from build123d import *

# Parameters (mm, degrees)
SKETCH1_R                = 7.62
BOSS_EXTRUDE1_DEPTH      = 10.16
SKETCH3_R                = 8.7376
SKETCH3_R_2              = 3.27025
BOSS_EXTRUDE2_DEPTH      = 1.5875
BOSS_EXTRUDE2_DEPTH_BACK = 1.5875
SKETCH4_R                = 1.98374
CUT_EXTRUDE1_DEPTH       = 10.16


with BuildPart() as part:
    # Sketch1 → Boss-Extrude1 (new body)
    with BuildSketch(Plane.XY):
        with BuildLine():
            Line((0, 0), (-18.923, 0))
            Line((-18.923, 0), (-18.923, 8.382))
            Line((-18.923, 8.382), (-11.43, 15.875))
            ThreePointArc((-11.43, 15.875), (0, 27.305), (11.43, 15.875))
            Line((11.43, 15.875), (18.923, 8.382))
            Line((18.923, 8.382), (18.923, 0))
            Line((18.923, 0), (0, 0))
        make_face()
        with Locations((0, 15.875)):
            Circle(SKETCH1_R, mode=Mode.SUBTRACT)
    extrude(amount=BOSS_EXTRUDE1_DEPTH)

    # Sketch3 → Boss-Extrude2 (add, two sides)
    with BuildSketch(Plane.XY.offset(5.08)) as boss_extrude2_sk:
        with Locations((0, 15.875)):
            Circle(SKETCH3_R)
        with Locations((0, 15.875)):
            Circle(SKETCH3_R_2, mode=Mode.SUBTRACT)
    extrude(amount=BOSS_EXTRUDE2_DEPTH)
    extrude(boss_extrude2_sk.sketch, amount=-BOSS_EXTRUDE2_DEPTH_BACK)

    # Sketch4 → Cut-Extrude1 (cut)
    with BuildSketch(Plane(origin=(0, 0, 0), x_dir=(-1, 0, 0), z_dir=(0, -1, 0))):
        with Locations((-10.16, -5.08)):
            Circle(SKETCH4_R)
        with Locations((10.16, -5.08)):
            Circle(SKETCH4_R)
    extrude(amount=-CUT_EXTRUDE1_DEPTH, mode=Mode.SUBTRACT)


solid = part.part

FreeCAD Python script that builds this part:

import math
import FreeCAD as App
import Part
import Sketcher
from FreeCAD import Vector
Q = App.Units.Quantity

doc = App.newDocument("Part")
params = doc.addObject("Spreadsheet::Sheet", "Params")
for row, (alias, value) in enumerate([
    ("sketch1_diameter", "0.6 in"),
    ("sketch1_radius", "0.45 in"),
    ("sketch1_width", "1.49 in"),
    ("sketch1_height", "0.33 in"),
    ("pad1_length", "0.4 in"),
    ("sketch2_diameter", "0.688 in"),
    ("pad2_length", "0.0625 in"),
    ("pad2_length2", "0.0625 in"),
    ("pocket1_length", "0.4 in"),
], start=1):
    params.set(f"A{row}", alias)
    params.set(f"B{row}", "=" + value)
    params.setAlias(f"B{row}", alias)

body = doc.addObject("PartDesign::Body", "Body")

# Sketch on XY plane
sketch1 = body.newObject("Sketcher::SketchObject", "Sketch")
sketch1.AttachmentSupport = (doc.getObject("XY_Plane"), [""])
sketch1.MapMode = "FlatFace"
sketch1.addGeometry([
    Part.LineSegment(Vector(-19, 8, 0), Vector(-19, 0, 0)),  # 0
    Part.LineSegment(Vector(-19, 0, 0), Vector(19, 0, 0)),  # 1
    Part.LineSegment(Vector(19, 0, 0), Vector(19, 8, 0)),  # 2
    Part.LineSegment(Vector(19, 8, 0), Vector(11, 16, 0)),  # 3
    Part.ArcOfCircle(Part.Circle(Vector(0, 16, 0), Vector(0, 0, 1), 11), math.radians(0), math.radians(180)),  # 4
    Part.LineSegment(Vector(-11, 16, 0), Vector(-19, 8, 0)),  # 5
    Part.Circle(Vector(0, 16, 0), Vector(0, 0, 1), 8),  # 6
], False)
sketch1.addConstraint([
    Sketcher.Constraint("Coincident", 0, 2, 1, 1),
    Sketcher.Constraint("Coincident", 1, 2, 2, 1),
    Sketcher.Constraint("Coincident", 2, 2, 3, 1),
    Sketcher.Constraint("Coincident", 3, 2, 4, 1),
    Sketcher.Constraint("Coincident", 4, 2, 5, 1),
    Sketcher.Constraint("Coincident", 5, 2, 0, 1),
    Sketcher.Constraint("Vertical", 0),
    Sketcher.Constraint("Horizontal", 1),
    Sketcher.Constraint("Vertical", 2),
    Sketcher.Constraint("Coincident", 6, 3, 4, 3),
    Sketcher.Constraint("Symmetric", 0, 2, 1, 2, -1, 1),
    Sketcher.Constraint("Symmetric", 3, 2, 4, 2, -2),
    Sketcher.Constraint("Perpendicular", 3, 5),
    Sketcher.Constraint("Horizontal", 6, 3, 3, 2),
    Sketcher.Constraint("Horizontal", 2, 2, 5, 2),
    Sketcher.Constraint("Diameter", 6, Q("0.6 in")),
    Sketcher.Constraint("Radius", 4, Q("0.45 in")),
    Sketcher.Constraint("DistanceX", 1, 1, 1, 2, Q("1.49 in")),
    Sketcher.Constraint("DistanceY", 0, 2, 0, 1, Q("0.33 in")),
])
sketch1.setExpression("Constraints[15]", "Params.sketch1_diameter")
sketch1.setExpression("Constraints[16]", "Params.sketch1_radius")
sketch1.setExpression("Constraints[17]", "Params.sketch1_width")
sketch1.setExpression("Constraints[18]", "Params.sketch1_height")
pad1 = body.newObject("PartDesign::Pad", "Pad")
pad1.Profile = sketch1
pad1.setExpression("Length", "Params.pad1_length")

# Sketch on XY plane
sketch2 = body.newObject("Sketcher::SketchObject", "Sketch001")
sketch2.AttachmentSupport = (doc.getObject("XY_Plane"), [""])
sketch2.MapMode = "FlatFace"
sketch2.AttachmentOffset = App.Placement(Vector(0, 0, 0.2 * 25.4), App.Rotation())
sketch2.addGeometry([
    Part.Circle(Vector(0, 15.9, 0), Vector(0, 0, 1), 8.7),
    Part.Circle(Vector(0, 15.9, 0), Vector(0, 0, 1), 3.3),
], False)
sketch2.addConstraint([
    Sketcher.Constraint("Coincident", 1, 3, 0, 3),
    Sketcher.Constraint("PointOnObject", 0, 3, -2),
    Sketcher.Constraint("Diameter", 0, Q("0.688 in")),
    Sketcher.Constraint("Diameter", 1, Q("0.2575 in")),
    Sketcher.Constraint("DistanceY", -1, 1, 0, 3, Q("0.625 in")),
])
sketch2.setExpression("Constraints[2]", "Params.sketch2_diameter")
pad2 = body.newObject("PartDesign::Pad", "Pad001")
pad2.Profile = sketch2
pad2.Type = "TwoLengths"
pad2.setExpression("Length", "Params.pad2_length")
pad2.setExpression("Length2", "Params.pad2_length2")

# Sketch on XZ plane
sketch3 = body.newObject("Sketcher::SketchObject", "Sketch002")
sketch3.AttachmentSupport = (doc.getObject("XZ_Plane"), [""])
sketch3.MapMode = "FlatFace"
sketch3.addGeometry([
    Part.Circle(Vector(10.2, 5.1, 0), Vector(0, 0, 1), 2),
    Part.Circle(Vector(-10.2, 5.1, 0), Vector(0, 0, 1), 2),
], False)
sketch3.addConstraint([
    Sketcher.Constraint("Equal", 0, 1),
    Sketcher.Constraint("Symmetric", 0, 3, 1, 3, -2),
    Sketcher.Constraint("Diameter", 0, Q("0.1562 in")),
    Sketcher.Constraint("DistanceX", -1, 1, 0, 3, Q("0.4 in")),
    Sketcher.Constraint("DistanceY", -1, 1, 0, 3, Q("0.2 in")),
])
pocket1 = body.newObject("PartDesign::Pocket", "Pocket")
pocket1.Profile = sketch3
pocket1.setExpression("Length", "Params.pocket1_length")

doc.recompute()
